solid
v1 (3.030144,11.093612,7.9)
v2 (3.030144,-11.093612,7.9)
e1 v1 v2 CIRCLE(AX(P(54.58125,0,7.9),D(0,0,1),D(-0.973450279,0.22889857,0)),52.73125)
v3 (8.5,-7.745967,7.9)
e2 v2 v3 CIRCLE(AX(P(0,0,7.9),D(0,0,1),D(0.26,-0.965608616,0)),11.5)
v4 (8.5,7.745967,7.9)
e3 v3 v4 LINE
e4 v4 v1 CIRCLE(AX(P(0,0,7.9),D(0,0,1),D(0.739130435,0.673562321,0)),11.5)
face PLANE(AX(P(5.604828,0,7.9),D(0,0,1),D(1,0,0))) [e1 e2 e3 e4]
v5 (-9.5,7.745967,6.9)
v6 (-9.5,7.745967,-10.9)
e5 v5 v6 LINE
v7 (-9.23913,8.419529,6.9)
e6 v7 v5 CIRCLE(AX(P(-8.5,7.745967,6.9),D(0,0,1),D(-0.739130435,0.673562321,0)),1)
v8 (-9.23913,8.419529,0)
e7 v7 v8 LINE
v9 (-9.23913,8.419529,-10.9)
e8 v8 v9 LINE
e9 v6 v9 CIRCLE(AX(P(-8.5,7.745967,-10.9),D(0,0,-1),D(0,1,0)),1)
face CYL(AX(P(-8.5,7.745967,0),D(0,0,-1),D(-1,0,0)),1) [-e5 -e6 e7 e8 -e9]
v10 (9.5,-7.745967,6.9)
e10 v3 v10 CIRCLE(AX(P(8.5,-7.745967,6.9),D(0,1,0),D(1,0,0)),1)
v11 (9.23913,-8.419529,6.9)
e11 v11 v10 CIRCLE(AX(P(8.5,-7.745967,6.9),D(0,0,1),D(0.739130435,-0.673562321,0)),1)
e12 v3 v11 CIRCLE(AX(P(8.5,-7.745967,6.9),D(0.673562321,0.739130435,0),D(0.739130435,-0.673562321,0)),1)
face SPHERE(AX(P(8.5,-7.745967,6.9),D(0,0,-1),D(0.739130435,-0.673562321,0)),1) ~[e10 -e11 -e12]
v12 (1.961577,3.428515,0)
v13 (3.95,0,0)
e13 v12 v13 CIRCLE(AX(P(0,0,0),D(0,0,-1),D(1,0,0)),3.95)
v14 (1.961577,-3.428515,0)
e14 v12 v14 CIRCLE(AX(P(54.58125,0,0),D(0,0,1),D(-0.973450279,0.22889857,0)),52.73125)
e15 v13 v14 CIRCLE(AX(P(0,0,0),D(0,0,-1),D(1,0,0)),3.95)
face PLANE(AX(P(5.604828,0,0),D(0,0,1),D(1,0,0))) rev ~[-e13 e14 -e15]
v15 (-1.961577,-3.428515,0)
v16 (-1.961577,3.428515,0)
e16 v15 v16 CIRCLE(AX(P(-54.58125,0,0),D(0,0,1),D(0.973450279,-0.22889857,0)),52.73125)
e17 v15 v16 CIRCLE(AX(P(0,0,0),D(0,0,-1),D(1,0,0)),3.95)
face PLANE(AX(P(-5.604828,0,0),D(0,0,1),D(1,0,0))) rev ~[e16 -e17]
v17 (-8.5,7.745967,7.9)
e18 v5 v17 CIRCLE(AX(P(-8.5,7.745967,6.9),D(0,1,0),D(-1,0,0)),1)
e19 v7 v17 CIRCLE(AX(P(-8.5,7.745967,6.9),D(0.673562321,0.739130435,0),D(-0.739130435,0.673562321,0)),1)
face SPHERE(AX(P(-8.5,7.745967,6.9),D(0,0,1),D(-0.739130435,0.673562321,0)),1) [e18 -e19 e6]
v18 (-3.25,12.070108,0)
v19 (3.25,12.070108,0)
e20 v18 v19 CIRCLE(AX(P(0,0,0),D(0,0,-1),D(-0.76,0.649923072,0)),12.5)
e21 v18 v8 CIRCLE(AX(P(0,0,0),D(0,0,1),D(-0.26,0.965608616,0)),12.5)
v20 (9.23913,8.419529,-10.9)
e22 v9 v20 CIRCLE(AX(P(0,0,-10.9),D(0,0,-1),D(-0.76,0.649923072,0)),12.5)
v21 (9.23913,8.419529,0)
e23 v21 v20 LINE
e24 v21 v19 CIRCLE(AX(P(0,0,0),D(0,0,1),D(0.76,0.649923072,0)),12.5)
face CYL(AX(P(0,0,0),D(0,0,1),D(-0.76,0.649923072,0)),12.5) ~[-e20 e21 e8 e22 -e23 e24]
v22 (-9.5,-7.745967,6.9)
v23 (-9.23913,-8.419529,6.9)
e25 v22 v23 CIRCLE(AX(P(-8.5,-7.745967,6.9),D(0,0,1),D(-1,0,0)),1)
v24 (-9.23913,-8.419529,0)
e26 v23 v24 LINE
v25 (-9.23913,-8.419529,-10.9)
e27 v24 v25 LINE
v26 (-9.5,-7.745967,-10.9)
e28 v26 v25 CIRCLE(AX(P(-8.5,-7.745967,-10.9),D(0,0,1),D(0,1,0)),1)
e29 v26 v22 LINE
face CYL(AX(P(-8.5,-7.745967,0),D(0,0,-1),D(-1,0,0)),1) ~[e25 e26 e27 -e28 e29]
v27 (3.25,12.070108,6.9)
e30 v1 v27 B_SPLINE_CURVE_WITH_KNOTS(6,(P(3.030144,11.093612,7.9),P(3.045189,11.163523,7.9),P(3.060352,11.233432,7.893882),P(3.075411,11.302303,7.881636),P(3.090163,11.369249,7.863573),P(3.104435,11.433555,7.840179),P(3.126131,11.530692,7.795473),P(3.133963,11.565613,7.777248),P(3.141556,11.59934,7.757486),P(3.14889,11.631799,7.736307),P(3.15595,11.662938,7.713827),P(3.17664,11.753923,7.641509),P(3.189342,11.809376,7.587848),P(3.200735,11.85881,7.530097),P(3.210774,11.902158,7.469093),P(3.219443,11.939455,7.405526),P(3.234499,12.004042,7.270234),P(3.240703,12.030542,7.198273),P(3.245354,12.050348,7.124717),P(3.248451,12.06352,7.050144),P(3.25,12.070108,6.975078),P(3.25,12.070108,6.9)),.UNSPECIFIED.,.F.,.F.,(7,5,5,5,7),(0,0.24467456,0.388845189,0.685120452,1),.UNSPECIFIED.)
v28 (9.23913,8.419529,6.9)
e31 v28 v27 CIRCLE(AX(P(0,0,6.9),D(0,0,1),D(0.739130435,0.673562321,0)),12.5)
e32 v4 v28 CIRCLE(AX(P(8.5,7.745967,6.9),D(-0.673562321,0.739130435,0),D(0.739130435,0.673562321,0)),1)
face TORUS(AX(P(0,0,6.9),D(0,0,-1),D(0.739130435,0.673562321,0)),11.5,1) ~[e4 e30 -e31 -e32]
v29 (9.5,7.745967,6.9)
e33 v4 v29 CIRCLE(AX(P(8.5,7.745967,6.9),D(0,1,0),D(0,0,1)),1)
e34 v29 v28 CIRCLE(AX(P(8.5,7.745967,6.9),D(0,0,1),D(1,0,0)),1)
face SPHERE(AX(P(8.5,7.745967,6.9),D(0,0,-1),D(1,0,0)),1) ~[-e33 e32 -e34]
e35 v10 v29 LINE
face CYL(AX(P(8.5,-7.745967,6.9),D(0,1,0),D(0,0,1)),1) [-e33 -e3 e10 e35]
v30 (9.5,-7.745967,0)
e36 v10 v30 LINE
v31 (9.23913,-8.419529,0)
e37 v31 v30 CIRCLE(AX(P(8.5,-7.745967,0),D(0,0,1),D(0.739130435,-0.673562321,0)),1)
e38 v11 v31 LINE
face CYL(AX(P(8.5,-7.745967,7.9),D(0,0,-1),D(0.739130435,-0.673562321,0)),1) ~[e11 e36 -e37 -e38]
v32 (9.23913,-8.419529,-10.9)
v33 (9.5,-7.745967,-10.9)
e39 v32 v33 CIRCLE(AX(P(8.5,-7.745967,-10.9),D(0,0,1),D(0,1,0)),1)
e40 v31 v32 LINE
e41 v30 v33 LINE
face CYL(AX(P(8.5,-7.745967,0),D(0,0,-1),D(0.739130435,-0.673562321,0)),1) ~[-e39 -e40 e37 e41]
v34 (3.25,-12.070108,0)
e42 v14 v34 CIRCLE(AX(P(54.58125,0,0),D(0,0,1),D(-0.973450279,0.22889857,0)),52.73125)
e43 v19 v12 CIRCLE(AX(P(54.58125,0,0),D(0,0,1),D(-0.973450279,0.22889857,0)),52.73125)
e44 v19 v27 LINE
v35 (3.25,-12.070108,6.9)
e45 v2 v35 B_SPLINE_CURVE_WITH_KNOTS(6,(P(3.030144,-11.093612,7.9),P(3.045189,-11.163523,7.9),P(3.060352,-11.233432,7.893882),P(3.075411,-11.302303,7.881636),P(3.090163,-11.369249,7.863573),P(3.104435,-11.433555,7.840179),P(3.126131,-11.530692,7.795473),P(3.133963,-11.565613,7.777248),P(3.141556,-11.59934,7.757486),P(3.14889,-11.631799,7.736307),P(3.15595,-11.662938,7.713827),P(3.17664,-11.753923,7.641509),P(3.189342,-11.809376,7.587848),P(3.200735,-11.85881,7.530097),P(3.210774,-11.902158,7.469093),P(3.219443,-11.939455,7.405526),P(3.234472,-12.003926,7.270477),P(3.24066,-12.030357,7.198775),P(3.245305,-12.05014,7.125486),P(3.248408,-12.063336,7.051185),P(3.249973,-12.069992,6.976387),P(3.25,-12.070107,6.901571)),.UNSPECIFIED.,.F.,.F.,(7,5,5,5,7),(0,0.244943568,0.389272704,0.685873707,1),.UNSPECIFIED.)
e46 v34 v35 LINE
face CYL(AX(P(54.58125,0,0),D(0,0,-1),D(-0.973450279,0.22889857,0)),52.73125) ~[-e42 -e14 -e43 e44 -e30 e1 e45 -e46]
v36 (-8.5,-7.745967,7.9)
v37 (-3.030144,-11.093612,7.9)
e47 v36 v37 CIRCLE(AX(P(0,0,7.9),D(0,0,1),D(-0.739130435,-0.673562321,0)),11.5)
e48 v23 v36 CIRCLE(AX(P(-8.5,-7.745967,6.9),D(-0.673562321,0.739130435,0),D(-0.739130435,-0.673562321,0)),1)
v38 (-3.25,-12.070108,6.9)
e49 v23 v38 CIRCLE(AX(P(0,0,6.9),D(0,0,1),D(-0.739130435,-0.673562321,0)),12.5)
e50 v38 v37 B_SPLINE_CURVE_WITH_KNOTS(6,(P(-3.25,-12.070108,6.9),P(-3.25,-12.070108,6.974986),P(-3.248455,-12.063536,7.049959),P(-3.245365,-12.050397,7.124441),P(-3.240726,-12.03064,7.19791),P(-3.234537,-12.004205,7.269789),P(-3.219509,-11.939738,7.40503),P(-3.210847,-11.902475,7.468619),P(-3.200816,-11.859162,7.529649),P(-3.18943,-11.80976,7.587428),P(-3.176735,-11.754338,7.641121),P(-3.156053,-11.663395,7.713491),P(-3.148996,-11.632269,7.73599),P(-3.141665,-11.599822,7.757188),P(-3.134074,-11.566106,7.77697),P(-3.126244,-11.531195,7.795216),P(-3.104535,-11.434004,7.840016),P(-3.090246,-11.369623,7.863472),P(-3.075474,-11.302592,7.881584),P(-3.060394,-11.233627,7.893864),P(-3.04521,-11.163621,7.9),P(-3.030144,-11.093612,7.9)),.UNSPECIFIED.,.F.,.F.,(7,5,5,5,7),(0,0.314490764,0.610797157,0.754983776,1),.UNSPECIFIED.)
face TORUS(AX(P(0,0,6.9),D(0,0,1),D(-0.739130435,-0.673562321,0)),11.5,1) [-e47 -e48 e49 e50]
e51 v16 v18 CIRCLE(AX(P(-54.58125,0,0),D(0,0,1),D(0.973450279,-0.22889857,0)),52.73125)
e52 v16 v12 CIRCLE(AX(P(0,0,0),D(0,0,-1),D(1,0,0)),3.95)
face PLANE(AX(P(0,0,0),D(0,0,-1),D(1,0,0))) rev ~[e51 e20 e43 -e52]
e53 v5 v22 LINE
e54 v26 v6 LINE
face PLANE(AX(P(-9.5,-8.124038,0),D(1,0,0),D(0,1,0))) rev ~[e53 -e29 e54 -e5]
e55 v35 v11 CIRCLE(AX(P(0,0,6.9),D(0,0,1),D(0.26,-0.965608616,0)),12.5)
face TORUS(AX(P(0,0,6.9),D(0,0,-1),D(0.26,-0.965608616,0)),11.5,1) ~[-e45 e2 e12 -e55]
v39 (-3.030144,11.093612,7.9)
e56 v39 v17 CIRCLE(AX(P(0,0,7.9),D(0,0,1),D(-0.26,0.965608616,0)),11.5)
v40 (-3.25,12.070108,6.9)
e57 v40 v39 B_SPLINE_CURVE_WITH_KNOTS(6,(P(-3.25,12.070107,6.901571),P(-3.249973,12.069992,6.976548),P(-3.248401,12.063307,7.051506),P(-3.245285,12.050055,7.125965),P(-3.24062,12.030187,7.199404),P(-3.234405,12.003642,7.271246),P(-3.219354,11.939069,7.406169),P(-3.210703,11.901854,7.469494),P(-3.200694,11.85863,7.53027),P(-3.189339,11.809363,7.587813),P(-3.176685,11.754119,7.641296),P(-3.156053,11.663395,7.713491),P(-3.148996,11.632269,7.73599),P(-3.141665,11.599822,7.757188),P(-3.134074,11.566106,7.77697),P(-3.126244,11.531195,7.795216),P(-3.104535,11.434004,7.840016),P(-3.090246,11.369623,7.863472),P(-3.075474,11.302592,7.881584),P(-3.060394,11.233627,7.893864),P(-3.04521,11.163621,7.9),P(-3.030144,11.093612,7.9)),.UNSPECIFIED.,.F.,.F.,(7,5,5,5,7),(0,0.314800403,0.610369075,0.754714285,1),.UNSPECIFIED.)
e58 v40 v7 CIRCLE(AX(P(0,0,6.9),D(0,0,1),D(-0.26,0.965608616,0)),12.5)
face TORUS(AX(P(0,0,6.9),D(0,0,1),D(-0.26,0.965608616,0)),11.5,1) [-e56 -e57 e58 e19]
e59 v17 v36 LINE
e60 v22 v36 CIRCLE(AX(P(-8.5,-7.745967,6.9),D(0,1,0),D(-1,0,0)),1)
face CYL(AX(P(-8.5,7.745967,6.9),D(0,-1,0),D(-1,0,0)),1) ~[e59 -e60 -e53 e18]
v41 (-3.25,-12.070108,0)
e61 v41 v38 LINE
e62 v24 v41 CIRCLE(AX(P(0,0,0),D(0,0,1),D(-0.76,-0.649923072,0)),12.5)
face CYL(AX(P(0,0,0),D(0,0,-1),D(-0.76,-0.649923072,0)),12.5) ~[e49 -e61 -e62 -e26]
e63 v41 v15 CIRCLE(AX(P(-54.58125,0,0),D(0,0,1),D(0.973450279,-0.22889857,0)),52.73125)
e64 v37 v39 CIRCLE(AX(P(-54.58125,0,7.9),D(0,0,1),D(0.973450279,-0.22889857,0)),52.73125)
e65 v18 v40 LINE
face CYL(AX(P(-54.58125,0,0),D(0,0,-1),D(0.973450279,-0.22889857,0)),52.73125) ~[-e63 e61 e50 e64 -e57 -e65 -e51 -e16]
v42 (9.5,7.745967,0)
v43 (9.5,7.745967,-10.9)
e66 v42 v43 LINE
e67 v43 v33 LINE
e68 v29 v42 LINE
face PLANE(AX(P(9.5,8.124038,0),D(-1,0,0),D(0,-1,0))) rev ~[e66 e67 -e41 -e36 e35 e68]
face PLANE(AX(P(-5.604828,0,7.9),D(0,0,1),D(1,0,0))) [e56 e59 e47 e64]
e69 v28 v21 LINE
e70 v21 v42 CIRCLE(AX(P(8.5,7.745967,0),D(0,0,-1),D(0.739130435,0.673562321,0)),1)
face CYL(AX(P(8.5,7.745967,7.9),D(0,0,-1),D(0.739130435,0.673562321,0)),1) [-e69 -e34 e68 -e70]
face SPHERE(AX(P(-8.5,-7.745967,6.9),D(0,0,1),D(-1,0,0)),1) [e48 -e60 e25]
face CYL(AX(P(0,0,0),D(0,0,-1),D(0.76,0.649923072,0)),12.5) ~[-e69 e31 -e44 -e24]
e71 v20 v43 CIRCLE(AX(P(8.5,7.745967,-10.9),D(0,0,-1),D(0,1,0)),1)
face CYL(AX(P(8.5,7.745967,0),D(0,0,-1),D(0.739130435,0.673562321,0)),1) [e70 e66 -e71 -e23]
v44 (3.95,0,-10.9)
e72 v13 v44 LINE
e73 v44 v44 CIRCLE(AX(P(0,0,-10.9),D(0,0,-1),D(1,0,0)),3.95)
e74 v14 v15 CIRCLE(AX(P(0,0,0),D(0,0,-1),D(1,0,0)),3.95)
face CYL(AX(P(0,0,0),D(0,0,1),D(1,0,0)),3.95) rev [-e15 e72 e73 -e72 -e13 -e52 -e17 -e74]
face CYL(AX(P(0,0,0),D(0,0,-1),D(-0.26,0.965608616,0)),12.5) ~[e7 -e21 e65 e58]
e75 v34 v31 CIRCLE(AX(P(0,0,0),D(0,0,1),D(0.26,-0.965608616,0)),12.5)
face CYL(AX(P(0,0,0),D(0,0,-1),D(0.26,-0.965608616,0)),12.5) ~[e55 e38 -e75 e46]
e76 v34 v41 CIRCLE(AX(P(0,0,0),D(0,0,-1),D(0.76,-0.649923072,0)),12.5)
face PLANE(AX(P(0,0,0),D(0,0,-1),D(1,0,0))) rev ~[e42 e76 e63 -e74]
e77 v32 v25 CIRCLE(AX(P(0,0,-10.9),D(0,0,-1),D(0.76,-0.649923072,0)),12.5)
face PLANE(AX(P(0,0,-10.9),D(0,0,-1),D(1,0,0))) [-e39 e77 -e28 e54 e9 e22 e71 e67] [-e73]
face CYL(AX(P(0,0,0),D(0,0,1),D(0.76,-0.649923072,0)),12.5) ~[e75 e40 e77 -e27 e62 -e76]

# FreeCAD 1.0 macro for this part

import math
import FreeCAD as App
import Part
import Sketcher
from FreeCAD import Vector
Q = App.Units.Quantity


def edges_at(feature, points):
    """Names of the edges that pass closest to the given points."""
    edges = feature.Shape.Edges
    near = lambda p: min(range(len(edges)), key=lambda i: edges[i].distToShape(Part.Vertex(*p))[0])
    return sorted({f"Edge{near(p) + 1}" for p in points})

doc = App.newDocument("Part")
body = doc.addObject("PartDesign::Body", "Body")

sketch1 = body.newObject("Sketcher::SketchObject", "Sketch")
sketch1.AttachmentSupport = (doc.getObject("XY_Plane"), [""])
sketch1.MapMode = "FlatFace"
sketch1.addGeometry([
    Part.LineSegment(Vector(9.5, -8.124038, 0), Vector(9.5, 8.124038, 0)),
    Part.ArcOfCircle(Part.Circle(Vector(0, 0, 0), Vector(0, 0, 1), 12.5), math.radians(40.535802), math.radians(74.929938)),
    Part.ArcOfCircle(Part.Circle(Vector(54.58125, 0, 0), Vector(0, 0, 1), 52.73125), math.radians(166.767765), math.radians(193.232235)),
    Part.ArcOfCircle(Part.Circle(Vector(0, 0, 0), Vector(0, 0, 1), 12.5), math.radians(-74.929938), math.radians(-40.535802)),
], False)
sketch1.addConstraint([
    Sketcher.Constraint("Coincident", 0, 2, 1, 1),
    Sketcher.Constraint("Coincident", 1, 2, 2, 1),
    Sketcher.Constraint("Coincident", 2, 2, 3, 1),
    Sketcher.Constraint("Coincident", 3, 2, 0, 1),
    Sketcher.Constraint("Vertical", 0),
    Sketcher.Constraint("Coincident", 1, 3, -1, 1),
    Sketcher.Constraint("Coincident", 3, 3, -1, 1),
    Sketcher.Constraint("Equal", 1, 3),
    Sketcher.Constraint("PointOnObject", 2, 3, -1),
    Sketcher.Constraint("Radius", 1, Q("12.5 mm")),
    Sketcher.Constraint("DistanceX", -1, 1, 0, 2, Q("9.5 mm")),
    Sketcher.Constraint("DistanceX", -1, 1, 1, 2, Q("3.25 mm")),
    Sketcher.Constraint("Radius", 2, Q("52.73125 mm")),
])
pad1 = body.newObject("PartDesign::Pad", "Pad")
pad1.Profile = sketch1
pad1.Length = 7.9
body2 = doc.addObject("PartDesign::Body", "Body001")

sketch2 = body2.newObject("Sketcher::SketchObject", "Sketch001")
sketch2.AttachmentSupport = (doc.getObject("XY_Plane001"), [""])
sketch2.MapMode = "FlatFace"
sketch2.addGeometry([
    Part.ArcOfCircle(Part.Circle(Vector(0, 0, 0), Vector(0, 0, 1), 12.5), math.radians(105.070062), math.radians(139.464198)),
    Part.LineSegment(Vector(-9.5, 8.124038, 0), Vector(-9.5, -8.124038, 0)),
    Part.ArcOfCircle(Part.Circle(Vector(0, 0, 0), Vector(0, 0, 1), 12.5), math.radians(-139.464198), math.radians(-105.070062)),
    Part.ArcOfCircle(Part.Circle(Vector(-54.58125, 0, 0), Vector(0, 0, 1), 52.73125), math.radians(-13.232235), math.radians(13.232235)),
], False)
sketch2.addConstraint([
    Sketcher.Constraint("Coincident", 0, 2, 1, 1),
    Sketcher.Constraint("Coincident", 1, 2, 2, 1),
    Sketcher.Constraint("Coincident", 2, 2, 3, 1),
    Sketcher.Constraint("Coincident", 3, 2, 0, 1),
    Sketcher.Constraint("Vertical", 1),
    Sketcher.Constraint("Coincident", 0, 3, -1, 1),
    Sketcher.Constraint("Coincident", 2, 3, -1, 1),
    Sketcher.Constraint("Equal", 0, 2),
    Sketcher.Constraint("PointOnObject", 3, 3, -1),
    Sketcher.Constraint("Radius", 0, Q("12.5 mm")),
    Sketcher.Constraint("DistanceX", 0, 2, -1, 1, Q("9.5 mm")),
    Sketcher.Constraint("DistanceX", 2, 2, -1, 1, Q("3.25 mm")),
    Sketcher.Constraint("Radius", 3, Q("52.73125 mm")),
])
pad2 = body2.newObject("PartDesign::Pad", "Pad001")
pad2.Profile = sketch2
pad2.Length = 7.9
body.AllowCompound = True
doc.recompute()

boolean = body.newObject("PartDesign::Boolean", "Boolean")
boolean.Type = "Fuse"
boolean.addObjects([body2])

sketch3 = body.newObject("Sketcher::SketchObject", "Sketch002")
sketch3.AttachmentSupport = (doc.getObject("XY_Plane"), [""])
sketch3.MapMode = "FlatFace"
sketch3.addGeometry([
    Part.LineSegment(Vector(-9.5, -8.124038, 0), Vector(-9.5, 8.124038, 0)),
    Part.ArcOfCircle(Part.Circle(Vector(0, 0, 0), Vector(0, 0, 1), 12.5), math.radians(40.535802), math.radians(139.464198)),
    Part.LineSegment(Vector(9.5, 8.124038, 0), Vector(9.5, -8.124038, 0)),
    Part.ArcOfCircle(Part.Circle(Vector(0, 0, 0), Vector(0, 0, 1), 12.5), math.radians(-139.464198), math.radians(-40.535802)),
    Part.Circle(Vector(0, 0, 0), Vector(0, 0, 1), 3.95),
], False)
sketch3.addConstraint([
    Sketcher.Constraint("Coincident", 0, 2, 1, 2),
    Sketcher.Constraint("Coincident", 1, 1, 2, 1),
    Sketcher.Constraint("Coincident", 2, 2, 3, 2),
    Sketcher.Constraint("Coincident", 3, 1, 0, 1),
    Sketcher.Constraint("Vertical", 0),
    Sketcher.Constraint("Vertical", 2),
    Sketcher.Constraint("Coincident", 1, 3, -1, 1),
    Sketcher.Constraint("Coincident", 3, 3, -1, 1),
    Sketcher.Constraint("Coincident", 4, 3, -1, 1),
    Sketcher.Constraint("Equal", 1, 3),
    Sketcher.Constraint("Horizontal", 0, 2, 1, 1),
    Sketcher.Constraint("Diameter", 4, Q("7.9 mm")),
    Sketcher.Constraint("Radius", 1, Q("12.5 mm")),
    Sketcher.Constraint("DistanceX", 0, 2, 1, 1, Q("19 mm")),
])
pad3 = body.newObject("PartDesign::Pad", "Pad002")
pad3.Profile = sketch3
pad3.Length = 10.9
pad3.Reversed = True
doc.recompute()

fillet = body.newObject("PartDesign::Fillet", "Fillet")
fillet.Base = (pad3, edges_at(pad3, [
    (-9.5, -8.124, -5.45),
    (9.5, -8.124, -5.45),
    (9.5, 8.124, -5.45),
    (-9.5, 8.124, -5.45),
]))
fillet.Radius = 1
doc.recompute()

fillet2 = body.newObject("PartDesign::Fillet", "Fillet001")
fillet2.Base = (fillet, edges_at(fillet, [(-9.5, 0, 7.9), (6.506, -10.674, 7.9)]))
fillet2.Radius = 1

doc.recompute()
